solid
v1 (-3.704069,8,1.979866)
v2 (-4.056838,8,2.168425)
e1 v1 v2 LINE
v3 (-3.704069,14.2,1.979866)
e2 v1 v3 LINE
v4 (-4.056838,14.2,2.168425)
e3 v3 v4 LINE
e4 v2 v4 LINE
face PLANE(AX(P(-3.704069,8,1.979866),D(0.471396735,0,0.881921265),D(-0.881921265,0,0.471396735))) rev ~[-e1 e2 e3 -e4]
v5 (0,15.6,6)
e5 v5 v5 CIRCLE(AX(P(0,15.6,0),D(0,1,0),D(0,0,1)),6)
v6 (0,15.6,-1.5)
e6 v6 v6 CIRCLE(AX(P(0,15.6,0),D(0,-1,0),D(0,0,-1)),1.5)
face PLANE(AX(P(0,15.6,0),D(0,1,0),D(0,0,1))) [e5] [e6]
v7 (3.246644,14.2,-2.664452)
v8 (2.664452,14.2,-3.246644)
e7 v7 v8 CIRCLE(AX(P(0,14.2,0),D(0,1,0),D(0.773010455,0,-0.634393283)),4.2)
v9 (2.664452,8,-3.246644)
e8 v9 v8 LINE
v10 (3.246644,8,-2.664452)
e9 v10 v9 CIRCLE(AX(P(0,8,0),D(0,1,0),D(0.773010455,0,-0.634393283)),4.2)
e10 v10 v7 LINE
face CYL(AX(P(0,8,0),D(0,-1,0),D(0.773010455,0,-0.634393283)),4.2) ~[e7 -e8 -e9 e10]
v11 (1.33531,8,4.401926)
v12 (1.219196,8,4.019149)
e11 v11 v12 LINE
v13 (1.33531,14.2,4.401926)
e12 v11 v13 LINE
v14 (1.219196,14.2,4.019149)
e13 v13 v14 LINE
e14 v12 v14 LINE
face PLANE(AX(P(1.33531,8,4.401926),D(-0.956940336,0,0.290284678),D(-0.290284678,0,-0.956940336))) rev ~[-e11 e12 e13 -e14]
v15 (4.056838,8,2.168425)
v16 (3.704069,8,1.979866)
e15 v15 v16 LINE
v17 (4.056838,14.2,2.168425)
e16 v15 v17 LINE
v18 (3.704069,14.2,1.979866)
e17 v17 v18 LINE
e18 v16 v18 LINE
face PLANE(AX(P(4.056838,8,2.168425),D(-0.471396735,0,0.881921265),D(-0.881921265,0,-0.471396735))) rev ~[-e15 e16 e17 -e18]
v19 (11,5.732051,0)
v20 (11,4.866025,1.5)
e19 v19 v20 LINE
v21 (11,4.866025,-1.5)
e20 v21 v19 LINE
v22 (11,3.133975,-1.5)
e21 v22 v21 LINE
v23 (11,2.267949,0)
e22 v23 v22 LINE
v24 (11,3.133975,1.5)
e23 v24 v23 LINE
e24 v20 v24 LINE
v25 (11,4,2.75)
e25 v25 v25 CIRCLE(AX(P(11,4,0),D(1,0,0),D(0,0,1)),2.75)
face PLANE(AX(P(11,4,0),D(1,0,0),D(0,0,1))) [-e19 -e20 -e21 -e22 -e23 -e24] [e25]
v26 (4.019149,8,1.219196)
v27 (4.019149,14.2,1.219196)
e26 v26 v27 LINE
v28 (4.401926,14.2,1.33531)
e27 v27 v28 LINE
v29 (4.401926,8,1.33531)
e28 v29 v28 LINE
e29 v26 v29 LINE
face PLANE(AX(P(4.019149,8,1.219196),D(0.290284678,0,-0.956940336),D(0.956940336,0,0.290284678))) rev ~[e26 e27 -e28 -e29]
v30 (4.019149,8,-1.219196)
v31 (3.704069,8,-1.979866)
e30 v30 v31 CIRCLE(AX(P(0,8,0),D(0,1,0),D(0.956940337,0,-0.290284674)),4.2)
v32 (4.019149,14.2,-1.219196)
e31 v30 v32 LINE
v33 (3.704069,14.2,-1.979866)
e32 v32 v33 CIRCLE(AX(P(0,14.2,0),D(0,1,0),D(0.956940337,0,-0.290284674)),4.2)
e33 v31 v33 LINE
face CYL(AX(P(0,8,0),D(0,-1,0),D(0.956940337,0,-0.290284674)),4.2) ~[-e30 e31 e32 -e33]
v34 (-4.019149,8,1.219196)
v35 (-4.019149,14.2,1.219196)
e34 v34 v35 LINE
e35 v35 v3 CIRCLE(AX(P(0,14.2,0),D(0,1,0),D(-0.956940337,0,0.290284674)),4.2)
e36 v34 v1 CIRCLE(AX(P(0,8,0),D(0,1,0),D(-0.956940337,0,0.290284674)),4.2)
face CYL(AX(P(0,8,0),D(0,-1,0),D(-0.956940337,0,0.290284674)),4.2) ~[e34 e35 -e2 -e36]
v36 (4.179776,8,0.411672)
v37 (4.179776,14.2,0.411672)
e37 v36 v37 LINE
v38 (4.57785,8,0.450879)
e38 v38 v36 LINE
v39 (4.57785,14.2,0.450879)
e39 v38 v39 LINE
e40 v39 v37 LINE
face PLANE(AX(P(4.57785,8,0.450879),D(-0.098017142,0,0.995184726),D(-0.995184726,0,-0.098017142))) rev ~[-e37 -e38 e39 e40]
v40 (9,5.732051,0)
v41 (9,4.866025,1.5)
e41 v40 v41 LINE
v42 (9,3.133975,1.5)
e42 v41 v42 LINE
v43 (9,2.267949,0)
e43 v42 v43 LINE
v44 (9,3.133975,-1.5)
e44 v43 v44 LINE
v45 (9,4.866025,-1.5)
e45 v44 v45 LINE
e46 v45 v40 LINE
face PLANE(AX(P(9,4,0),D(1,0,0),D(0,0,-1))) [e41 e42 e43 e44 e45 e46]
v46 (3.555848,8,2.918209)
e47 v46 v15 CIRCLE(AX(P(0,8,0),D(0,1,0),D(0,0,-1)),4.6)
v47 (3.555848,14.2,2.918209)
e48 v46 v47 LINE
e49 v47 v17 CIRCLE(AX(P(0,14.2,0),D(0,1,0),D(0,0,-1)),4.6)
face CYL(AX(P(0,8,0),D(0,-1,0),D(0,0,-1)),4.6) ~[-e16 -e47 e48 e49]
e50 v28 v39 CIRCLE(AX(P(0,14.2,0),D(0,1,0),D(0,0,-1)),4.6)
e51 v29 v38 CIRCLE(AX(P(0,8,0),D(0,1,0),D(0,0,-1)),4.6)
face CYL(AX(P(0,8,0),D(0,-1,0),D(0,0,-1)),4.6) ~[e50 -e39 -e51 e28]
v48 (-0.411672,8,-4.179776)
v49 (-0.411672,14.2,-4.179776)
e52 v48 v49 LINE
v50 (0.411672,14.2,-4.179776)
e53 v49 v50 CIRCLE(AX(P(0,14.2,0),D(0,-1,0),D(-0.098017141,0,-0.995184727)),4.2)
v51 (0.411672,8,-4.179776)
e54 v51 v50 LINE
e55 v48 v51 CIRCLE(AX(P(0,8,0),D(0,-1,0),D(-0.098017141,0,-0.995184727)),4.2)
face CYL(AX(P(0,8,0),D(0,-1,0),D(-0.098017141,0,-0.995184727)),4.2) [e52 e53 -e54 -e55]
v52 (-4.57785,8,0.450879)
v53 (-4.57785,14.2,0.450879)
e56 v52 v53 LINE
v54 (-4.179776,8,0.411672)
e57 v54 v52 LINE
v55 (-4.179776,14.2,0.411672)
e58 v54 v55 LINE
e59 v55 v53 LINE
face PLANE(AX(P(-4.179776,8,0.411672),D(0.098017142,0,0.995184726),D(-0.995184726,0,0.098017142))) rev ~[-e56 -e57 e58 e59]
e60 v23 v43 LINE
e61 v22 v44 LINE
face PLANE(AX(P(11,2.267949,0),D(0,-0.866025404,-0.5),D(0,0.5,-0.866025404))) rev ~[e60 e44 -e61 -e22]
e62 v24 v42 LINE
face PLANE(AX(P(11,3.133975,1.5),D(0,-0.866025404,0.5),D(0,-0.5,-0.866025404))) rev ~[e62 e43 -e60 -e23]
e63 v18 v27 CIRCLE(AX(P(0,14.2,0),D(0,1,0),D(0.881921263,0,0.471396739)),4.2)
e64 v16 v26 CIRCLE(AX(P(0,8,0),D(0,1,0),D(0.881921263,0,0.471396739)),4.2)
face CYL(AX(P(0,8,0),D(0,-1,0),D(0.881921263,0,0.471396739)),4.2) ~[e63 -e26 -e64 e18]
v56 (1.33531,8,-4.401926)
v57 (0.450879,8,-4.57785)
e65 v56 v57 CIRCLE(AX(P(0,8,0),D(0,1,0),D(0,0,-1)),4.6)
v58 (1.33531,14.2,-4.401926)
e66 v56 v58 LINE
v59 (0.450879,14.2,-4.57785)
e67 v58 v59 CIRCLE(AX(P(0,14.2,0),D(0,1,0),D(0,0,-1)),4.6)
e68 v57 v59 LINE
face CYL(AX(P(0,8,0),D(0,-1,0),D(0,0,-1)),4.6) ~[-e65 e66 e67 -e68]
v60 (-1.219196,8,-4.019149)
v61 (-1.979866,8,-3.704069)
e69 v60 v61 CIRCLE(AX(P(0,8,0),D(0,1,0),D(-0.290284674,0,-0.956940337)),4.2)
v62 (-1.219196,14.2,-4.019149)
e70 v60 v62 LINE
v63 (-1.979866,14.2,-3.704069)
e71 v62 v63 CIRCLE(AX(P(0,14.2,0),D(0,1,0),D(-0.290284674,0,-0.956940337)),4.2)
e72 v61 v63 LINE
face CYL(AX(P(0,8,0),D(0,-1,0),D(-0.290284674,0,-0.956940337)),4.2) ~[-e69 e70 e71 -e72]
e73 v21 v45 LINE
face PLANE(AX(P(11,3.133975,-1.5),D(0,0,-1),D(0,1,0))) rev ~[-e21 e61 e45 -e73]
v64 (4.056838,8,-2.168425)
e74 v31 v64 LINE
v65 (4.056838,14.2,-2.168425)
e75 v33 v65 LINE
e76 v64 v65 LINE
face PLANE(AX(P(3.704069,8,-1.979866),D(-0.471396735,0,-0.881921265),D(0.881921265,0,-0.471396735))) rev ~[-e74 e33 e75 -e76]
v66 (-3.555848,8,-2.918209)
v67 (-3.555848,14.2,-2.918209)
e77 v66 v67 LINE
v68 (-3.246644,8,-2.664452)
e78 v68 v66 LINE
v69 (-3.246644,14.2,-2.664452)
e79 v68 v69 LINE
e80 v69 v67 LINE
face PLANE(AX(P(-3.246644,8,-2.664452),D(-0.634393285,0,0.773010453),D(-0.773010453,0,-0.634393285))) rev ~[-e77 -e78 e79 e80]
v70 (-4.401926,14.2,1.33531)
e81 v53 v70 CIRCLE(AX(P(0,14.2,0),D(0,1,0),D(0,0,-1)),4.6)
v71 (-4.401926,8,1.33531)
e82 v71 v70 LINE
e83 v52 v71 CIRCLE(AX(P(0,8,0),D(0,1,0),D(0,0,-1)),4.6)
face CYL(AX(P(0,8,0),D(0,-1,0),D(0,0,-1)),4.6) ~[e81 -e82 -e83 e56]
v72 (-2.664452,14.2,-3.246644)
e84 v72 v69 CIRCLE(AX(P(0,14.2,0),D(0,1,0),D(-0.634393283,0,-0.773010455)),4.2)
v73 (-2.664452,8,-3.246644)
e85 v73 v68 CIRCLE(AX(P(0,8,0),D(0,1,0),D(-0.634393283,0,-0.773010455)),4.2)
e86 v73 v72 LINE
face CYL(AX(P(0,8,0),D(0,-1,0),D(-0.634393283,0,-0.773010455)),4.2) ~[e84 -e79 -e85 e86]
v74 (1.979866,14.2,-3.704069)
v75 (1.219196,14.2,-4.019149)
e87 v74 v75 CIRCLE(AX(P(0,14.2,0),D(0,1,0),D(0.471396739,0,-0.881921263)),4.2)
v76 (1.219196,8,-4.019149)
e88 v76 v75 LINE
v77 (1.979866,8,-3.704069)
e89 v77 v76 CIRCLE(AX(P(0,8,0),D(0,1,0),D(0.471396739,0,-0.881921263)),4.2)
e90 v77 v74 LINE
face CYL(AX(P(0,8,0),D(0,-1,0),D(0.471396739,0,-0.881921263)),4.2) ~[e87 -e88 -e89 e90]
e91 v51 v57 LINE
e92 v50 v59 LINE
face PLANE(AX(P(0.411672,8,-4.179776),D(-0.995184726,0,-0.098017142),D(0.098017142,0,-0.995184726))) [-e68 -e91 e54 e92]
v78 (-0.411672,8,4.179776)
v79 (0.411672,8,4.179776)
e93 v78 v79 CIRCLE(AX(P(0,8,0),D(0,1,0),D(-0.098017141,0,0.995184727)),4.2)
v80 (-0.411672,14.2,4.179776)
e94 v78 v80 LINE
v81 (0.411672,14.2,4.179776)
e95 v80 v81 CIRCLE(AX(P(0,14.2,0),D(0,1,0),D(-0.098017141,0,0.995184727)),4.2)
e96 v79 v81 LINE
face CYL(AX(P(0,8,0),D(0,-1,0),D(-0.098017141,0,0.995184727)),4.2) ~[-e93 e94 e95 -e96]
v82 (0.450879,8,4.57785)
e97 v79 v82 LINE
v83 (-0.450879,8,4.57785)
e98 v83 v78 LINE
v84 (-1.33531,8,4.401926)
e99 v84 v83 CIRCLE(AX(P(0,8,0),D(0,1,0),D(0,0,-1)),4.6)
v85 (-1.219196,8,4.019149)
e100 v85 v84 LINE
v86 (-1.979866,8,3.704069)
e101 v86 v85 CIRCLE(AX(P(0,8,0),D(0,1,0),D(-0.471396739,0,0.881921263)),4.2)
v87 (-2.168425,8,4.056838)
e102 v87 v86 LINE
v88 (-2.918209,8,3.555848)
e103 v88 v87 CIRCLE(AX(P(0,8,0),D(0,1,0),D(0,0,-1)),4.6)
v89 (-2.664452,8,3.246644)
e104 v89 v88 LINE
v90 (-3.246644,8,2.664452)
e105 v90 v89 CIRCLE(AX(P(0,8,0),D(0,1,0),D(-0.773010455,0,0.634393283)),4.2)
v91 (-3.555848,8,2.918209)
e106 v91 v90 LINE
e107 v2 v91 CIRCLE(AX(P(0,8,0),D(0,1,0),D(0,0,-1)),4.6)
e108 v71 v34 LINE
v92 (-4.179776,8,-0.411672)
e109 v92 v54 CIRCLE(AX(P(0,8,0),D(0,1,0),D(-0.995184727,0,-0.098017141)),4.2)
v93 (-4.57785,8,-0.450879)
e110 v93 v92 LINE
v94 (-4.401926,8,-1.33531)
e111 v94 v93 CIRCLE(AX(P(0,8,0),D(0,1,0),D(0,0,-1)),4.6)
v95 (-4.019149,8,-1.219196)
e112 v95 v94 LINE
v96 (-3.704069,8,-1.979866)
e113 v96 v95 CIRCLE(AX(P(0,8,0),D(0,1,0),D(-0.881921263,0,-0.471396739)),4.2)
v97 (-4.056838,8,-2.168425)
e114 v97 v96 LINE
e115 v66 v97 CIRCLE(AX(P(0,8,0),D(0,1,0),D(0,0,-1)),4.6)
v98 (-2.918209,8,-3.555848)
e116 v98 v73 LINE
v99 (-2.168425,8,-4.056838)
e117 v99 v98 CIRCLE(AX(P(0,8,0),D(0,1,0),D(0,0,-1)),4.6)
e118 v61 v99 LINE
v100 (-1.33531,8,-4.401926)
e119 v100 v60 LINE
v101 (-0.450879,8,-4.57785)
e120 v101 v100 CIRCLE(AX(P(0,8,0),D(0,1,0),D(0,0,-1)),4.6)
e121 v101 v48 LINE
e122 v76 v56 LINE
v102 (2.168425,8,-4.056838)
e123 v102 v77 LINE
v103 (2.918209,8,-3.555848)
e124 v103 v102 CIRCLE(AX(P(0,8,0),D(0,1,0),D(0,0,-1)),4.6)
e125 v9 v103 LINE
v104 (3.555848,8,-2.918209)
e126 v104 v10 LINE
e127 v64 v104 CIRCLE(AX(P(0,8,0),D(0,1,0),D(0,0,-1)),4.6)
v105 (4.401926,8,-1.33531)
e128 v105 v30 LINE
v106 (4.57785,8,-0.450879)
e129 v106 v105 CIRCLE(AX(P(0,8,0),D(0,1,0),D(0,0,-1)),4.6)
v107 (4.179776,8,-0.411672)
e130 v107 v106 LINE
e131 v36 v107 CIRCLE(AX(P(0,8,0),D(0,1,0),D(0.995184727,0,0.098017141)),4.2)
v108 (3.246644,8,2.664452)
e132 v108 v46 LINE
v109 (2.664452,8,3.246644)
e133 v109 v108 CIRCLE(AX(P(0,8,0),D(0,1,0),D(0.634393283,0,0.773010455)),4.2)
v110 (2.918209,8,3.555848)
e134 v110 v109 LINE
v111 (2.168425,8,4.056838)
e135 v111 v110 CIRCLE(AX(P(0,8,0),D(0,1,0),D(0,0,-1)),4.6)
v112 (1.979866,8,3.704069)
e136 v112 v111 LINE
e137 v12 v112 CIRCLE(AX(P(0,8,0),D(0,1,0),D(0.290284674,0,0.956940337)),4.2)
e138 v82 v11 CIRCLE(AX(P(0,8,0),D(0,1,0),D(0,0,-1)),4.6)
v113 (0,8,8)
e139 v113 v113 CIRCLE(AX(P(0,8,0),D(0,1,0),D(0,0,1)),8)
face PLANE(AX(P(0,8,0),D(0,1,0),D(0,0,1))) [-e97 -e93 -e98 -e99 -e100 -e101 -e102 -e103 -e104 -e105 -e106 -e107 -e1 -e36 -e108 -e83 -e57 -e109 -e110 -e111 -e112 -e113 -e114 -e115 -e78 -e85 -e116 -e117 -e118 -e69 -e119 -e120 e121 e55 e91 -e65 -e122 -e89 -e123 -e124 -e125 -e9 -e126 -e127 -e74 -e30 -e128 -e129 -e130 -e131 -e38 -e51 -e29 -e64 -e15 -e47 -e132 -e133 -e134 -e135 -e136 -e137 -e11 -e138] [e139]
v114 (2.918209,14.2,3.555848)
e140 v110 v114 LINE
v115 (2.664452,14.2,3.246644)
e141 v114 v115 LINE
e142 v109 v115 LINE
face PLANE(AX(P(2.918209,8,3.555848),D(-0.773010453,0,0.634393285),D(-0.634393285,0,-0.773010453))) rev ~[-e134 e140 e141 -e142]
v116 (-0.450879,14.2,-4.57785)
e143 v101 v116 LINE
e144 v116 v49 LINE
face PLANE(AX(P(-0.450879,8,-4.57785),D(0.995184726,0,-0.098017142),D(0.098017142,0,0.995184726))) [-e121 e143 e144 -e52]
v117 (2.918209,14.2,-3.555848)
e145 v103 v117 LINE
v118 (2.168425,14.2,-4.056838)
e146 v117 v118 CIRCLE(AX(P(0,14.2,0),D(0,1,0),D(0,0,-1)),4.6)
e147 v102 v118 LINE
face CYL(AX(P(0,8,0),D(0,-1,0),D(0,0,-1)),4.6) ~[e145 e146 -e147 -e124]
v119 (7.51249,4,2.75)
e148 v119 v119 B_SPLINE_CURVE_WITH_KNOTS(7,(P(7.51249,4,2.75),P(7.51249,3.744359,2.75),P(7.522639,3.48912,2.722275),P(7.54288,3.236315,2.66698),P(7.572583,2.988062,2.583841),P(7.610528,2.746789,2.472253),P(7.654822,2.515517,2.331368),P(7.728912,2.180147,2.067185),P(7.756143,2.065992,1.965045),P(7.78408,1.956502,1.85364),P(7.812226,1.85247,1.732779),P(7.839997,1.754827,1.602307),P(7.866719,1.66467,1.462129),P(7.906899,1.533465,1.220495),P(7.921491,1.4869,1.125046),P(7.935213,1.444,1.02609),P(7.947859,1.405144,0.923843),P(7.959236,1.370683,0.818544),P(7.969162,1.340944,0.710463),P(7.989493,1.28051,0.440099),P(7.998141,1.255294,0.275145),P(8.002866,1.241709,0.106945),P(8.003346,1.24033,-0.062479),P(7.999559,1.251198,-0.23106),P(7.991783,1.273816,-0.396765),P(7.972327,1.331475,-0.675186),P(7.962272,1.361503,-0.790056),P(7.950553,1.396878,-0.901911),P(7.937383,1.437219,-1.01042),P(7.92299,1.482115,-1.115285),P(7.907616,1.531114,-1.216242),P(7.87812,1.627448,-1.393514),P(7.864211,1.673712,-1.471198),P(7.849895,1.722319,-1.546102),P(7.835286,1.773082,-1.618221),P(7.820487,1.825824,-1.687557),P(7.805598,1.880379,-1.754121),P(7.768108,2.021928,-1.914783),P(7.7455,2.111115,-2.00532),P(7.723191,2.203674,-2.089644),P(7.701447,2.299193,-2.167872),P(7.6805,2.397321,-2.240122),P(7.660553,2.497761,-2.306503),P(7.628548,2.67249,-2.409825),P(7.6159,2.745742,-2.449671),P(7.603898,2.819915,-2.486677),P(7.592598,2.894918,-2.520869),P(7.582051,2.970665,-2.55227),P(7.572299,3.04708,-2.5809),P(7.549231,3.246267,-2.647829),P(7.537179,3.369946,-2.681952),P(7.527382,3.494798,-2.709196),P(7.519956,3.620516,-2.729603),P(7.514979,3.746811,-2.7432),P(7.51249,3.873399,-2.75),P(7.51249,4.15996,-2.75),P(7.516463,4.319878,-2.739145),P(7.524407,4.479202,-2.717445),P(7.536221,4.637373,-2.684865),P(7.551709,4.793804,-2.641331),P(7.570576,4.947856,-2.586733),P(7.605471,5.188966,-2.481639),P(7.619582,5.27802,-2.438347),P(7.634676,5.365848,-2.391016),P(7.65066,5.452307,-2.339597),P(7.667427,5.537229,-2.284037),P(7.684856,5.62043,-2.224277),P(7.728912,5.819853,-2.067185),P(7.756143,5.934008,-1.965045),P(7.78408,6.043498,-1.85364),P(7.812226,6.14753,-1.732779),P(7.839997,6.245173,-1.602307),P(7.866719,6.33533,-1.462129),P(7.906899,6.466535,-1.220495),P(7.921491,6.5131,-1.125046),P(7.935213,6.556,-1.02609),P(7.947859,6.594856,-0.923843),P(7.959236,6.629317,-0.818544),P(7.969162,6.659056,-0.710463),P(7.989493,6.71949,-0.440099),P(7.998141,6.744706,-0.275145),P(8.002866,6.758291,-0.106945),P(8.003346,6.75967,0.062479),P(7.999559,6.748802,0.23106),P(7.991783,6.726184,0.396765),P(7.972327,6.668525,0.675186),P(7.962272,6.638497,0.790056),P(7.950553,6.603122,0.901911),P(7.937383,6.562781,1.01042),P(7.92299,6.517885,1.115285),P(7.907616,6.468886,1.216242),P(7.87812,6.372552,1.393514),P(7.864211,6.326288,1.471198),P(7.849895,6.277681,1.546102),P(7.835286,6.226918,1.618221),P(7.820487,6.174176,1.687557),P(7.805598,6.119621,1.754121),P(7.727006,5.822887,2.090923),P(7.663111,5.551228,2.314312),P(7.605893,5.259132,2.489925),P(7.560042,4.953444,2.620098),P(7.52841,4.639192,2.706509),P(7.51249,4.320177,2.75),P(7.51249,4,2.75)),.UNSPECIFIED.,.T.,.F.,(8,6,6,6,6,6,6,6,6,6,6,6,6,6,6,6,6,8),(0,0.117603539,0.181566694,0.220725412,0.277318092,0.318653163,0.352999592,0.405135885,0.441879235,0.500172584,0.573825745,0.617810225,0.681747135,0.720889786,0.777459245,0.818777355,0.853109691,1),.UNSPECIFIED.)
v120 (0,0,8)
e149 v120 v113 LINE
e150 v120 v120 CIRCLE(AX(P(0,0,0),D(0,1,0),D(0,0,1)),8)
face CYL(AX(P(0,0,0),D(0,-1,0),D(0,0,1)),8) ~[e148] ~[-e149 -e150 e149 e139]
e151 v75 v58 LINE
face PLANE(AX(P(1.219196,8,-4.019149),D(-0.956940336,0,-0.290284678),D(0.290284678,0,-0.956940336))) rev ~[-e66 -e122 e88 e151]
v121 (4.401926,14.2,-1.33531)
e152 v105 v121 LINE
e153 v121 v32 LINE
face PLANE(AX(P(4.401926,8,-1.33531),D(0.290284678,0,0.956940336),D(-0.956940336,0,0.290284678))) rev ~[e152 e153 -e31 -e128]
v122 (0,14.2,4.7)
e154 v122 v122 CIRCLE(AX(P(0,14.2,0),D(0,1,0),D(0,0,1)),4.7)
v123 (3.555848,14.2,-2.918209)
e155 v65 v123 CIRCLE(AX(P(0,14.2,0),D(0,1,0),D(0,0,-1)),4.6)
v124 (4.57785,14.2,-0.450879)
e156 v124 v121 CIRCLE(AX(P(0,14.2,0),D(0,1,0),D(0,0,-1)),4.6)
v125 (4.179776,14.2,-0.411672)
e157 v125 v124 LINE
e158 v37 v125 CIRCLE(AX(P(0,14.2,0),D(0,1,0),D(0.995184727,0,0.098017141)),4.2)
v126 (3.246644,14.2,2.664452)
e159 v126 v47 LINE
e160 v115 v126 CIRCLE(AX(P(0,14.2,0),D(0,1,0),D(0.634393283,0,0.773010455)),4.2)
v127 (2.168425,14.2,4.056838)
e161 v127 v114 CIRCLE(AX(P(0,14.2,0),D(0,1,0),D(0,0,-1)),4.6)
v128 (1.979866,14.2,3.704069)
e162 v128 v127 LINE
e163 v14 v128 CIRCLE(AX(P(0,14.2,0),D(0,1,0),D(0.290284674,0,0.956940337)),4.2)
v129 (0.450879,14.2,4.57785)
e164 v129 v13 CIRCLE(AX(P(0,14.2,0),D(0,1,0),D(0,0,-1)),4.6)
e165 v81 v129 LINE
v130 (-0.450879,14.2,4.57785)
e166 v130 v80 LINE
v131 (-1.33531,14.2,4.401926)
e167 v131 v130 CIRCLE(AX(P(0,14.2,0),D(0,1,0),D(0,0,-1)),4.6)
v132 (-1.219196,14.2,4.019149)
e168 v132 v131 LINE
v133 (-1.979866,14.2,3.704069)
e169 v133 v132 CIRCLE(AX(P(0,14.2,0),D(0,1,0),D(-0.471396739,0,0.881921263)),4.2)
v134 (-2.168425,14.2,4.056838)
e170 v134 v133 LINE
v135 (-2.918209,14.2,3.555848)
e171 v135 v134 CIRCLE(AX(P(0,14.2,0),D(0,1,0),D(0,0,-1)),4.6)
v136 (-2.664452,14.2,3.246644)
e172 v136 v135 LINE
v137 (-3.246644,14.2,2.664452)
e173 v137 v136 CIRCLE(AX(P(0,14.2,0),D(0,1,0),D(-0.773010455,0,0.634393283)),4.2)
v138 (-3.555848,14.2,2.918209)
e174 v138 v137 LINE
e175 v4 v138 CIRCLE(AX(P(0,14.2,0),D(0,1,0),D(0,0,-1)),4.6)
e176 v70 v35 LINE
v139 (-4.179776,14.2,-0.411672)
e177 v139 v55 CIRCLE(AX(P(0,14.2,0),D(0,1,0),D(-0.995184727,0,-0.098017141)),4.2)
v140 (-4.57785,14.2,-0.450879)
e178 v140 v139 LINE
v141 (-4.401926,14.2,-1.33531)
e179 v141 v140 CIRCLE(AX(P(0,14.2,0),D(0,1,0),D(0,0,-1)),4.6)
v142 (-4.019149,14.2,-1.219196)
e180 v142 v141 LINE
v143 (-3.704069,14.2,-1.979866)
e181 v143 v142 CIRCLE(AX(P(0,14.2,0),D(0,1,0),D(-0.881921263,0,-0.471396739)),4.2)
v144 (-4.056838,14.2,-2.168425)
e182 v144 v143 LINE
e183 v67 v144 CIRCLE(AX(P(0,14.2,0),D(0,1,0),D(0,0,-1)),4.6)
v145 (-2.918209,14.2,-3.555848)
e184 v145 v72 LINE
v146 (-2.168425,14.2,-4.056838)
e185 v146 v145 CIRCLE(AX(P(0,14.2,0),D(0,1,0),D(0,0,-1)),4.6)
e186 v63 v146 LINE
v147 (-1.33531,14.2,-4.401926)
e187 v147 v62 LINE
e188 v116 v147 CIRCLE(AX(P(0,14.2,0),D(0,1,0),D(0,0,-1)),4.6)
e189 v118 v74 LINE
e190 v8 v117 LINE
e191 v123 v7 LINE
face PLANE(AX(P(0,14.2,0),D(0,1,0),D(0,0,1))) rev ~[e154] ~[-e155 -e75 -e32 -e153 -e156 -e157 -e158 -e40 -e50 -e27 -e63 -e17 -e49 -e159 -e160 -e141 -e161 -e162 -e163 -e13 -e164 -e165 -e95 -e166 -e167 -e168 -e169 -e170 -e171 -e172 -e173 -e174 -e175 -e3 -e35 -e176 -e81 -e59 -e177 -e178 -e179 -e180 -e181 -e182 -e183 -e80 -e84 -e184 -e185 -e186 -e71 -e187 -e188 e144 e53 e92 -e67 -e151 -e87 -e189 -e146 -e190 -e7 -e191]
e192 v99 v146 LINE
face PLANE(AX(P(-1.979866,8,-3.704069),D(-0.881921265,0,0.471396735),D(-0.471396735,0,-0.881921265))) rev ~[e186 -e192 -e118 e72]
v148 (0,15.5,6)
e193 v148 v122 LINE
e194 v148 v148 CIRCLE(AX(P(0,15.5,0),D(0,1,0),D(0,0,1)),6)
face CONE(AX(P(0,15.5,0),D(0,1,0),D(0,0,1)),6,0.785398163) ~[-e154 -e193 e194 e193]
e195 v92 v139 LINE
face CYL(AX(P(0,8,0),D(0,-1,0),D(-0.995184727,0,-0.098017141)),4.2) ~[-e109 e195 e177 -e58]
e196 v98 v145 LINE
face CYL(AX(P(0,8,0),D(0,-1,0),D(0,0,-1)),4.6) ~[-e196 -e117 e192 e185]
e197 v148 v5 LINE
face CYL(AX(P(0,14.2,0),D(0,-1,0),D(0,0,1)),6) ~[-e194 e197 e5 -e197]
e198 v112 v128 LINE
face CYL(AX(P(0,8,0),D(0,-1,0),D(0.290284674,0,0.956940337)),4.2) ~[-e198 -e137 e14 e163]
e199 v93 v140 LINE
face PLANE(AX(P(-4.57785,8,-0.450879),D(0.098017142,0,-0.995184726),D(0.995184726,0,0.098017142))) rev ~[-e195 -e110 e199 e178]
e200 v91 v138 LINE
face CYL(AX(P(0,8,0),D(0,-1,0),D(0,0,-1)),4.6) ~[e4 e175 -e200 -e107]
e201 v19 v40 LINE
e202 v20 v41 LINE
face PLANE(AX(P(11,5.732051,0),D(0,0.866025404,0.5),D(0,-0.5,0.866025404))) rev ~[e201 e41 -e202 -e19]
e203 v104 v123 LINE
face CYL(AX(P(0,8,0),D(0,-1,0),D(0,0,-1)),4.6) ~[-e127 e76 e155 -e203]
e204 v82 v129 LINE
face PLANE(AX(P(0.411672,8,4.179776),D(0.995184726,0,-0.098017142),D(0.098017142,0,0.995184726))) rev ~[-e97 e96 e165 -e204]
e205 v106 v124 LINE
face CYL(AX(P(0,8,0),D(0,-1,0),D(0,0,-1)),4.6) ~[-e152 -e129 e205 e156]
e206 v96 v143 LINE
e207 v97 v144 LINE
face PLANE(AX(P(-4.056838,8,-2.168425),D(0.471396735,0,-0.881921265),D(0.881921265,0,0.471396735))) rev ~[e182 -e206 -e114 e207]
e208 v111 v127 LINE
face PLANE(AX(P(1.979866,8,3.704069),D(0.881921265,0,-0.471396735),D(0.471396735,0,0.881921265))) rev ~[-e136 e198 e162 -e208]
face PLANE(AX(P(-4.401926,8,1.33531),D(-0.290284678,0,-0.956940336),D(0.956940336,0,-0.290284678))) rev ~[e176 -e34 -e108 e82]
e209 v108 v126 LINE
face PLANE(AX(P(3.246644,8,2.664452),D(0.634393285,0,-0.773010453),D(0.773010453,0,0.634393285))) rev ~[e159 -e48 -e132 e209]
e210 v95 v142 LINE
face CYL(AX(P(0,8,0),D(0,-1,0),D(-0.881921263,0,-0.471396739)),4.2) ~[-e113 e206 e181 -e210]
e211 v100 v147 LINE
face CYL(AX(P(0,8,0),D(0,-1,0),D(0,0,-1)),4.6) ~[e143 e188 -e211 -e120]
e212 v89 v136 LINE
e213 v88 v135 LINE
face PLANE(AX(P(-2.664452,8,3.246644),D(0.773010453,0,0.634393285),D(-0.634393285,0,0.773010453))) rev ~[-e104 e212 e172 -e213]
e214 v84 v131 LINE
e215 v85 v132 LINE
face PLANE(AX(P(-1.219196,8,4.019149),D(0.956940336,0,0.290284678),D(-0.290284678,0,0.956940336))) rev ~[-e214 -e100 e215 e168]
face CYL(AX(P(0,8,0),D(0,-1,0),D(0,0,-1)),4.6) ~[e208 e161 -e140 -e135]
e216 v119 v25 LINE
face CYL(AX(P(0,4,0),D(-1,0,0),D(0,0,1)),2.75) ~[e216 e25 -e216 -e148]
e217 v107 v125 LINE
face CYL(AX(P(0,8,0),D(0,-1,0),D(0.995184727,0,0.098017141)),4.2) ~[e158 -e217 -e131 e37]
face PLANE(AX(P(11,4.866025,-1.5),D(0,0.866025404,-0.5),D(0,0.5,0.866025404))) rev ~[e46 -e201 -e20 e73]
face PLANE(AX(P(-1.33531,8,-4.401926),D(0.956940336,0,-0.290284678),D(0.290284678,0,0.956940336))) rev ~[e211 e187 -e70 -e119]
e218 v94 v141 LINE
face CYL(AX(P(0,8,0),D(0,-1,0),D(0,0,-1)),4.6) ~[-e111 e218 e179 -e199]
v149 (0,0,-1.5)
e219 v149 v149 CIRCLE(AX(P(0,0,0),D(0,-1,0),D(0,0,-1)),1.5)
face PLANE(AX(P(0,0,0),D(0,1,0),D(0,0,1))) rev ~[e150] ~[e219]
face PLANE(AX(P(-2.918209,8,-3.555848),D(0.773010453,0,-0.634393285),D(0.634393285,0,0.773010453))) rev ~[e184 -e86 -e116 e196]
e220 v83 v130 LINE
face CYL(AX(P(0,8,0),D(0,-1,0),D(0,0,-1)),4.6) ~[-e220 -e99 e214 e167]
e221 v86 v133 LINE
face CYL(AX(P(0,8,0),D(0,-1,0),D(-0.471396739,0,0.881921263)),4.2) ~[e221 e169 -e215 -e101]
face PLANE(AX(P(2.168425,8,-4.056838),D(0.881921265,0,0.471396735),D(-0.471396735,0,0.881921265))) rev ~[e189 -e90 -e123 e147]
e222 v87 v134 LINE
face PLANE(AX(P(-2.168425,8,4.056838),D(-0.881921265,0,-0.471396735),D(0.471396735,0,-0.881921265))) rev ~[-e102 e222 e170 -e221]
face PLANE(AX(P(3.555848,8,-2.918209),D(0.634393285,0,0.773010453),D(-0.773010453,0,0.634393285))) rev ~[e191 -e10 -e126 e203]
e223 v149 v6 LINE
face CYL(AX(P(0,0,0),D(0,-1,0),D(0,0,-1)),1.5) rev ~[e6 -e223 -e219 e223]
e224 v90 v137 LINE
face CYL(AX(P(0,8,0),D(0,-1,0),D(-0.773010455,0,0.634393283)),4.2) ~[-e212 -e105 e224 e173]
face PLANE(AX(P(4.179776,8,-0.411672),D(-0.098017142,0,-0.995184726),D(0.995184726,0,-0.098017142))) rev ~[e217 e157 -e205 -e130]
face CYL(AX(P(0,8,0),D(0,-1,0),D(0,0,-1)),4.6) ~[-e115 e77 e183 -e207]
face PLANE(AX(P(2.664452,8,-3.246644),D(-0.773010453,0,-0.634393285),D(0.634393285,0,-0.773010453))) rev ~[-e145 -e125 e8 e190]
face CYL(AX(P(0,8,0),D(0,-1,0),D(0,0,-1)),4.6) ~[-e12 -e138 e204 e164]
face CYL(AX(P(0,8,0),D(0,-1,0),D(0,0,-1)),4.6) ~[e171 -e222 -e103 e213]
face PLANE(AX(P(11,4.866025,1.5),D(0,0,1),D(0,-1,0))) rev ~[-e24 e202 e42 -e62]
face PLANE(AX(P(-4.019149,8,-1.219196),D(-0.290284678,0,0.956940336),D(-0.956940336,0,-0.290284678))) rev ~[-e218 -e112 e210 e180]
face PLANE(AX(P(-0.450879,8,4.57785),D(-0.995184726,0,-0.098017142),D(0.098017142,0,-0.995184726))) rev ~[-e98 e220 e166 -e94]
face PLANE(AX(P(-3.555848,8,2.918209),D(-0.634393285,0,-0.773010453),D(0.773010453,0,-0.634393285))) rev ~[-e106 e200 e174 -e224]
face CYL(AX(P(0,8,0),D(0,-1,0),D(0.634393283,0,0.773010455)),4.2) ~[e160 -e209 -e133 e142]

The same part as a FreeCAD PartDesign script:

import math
import FreeCAD as App
import Part
import Sketcher

V = App.Vector
Q = App.Units.Quantity


def edges_at(feature, points):
    """Names of the edges that pass closest to the given points."""
    edges = feature.Shape.Edges
    near = lambda p: min(range(len(edges)), key=lambda i: edges[i].distToShape(Part.Vertex(*p))[0])
    return sorted({f"Edge{near(p) + 1}" for p in points})


def add_polygon(sketch, points):
    """Adds a closed chain of lines whose ends are joined by coincident constraints."""
    first, n = sketch.GeometryCount, len(points)
    for a, b in zip(points, points[1:] + points[:1]):
        sketch.addGeometry(Part.LineSegment(App.Vector(*a, 0), App.Vector(*b, 0)), False)
    for i in range(n):
        sketch.addConstraint(Sketcher.Constraint("Coincident", first + i, 2, first + (i + 1) % n, 1))

doc = App.newDocument("Part")
body = doc.addObject("PartDesign::Body", "Body")

sketch1 = doc.addObject("Sketcher::SketchObject", "Sketch")
body.addObject(sketch1)
sketch1.AttachmentSupport = (doc.XZ_Plane, [""])
sketch1.MapMode = "FlatFace"
sketch1.addGeometry(Part.Circle(V(0, 0, 0), V(0, 0, 1), 8), False)
sketch1.addConstraint([
    Sketcher.Constraint("Coincident", 0, 3, -1, 1),
    Sketcher.Constraint("Diameter", 0, 16.0),
])
pad1 = doc.addObject("PartDesign::Pad", "Pad")
body.addObject(pad1)
pad1.Profile = sketch1
pad1.Length = 8
pad1.Reversed = True

sketch2 = doc.addObject("Sketcher::SketchObject", "Sketch001")
body.addObject(sketch2)
sketch2.AttachmentSupport = (doc.XZ_Plane, [""])
sketch2.MapMode = "FlatFace"
sketch2.AttachmentOffset = App.Placement(V(0, 0, -8), App.Rotation())
sketch2.addGeometry(Part.Circle(V(0, 0, 0), V(0, 0, 1), 4.6), False)
sketch2.addConstraint([
    Sketcher.Constraint("Coincident", 0, 3, -1, 1),
    Sketcher.Constraint("Diameter", 0, 9.2),
])
pad2 = doc.addObject("PartDesign::Pad", "Pad001")
body.addObject(pad2)
pad2.Profile = sketch2
pad2.Length = 6.2
pad2.Reversed = True

sketch3 = doc.addObject("Sketcher::SketchObject", "Sketch002")
body.addObject(sketch3)
sketch3.AttachmentSupport = (doc.XZ_Plane, [""])
sketch3.MapMode = "FlatFace"
sketch3.AttachmentOffset = App.Placement(V(0, 0, -8), App.Rotation())
sketch3.addGeometry([
    Part.LineSegment(V(-0.45, -4.58, 0), V(-0.41, -4.18, 0)),
    Part.ArcOfCircle(Part.Circle(V(0, 0, 0), V(0, 0, 1), 4.2), math.radians(-95.63), math.radians(-84.37)),
    Part.LineSegment(V(0.41, -4.18, 0), V(0.45, -4.58, 0)),
    Part.ArcOfCircle(Part.Circle(V(0, 0, 0), V(0, 0, 1), 4.6), math.radians(-95.62), math.radians(-84.38)),
    Part.LineSegment(V(1.98, -3.7, 0), V(2.17, -4.06, 0)),
    Part.ArcOfCircle(Part.Circle(V(0, 0, 0), V(0, 0, 1), 4.6), math.radians(-73.13), math.radians(-61.87)),
    Part.LineSegment(V(1.34, -4.4, 0), V(1.22, -4.02, 0)),
    Part.ArcOfCircle(Part.Circle(V(0, 0, 0), V(0, 0, 1), 4.2), math.radians(-73.13), math.radians(-61.87)),
    Part.LineSegment(V(3.25, -2.66, 0), V(3.56, -2.92, 0)),
    Part.ArcOfCircle(Part.Circle(V(0, 0, 0), V(0, 0, 1), 4.6), math.radians(-50.62), math.radians(-39.38)),
    Part.LineSegment(V(2.92, -3.56, 0), V(2.66, -3.25, 0)),
    Part.ArcOfCircle(Part.Circle(V(0, 0, 0), V(0, 0, 1), 4.2), math.radians(-50.63), math.radians(-39.37)),
    Part.LineSegment(V(4.02, -1.22, 0), V(4.4, -1.34, 0)),
    Part.ArcOfCircle(Part.Circle(V(0, 0, 0), V(0, 0, 1), 4.6), math.radians(-28.13), math.radians(-16.87)),
    Part.LineSegment(V(4.06, -2.17, 0), V(3.7, -1.98, 0)),
    Part.ArcOfCircle(Part.Circle(V(0, 0, 0), V(0, 0, 1), 4.2), math.radians(-28.13), math.radians(-16.87)),
    Part.LineSegment(V(4.18, 0.41, 0), V(4.58, 0.45, 0)),
    Part.ArcOfCircle(Part.Circle(V(0, 0, 0), V(0, 0, 1), 4.6), math.radians(-5.62), math.radians(5.62)),
    Part.LineSegment(V(4.58, -0.45, 0), V(4.18, -0.41, 0)),
    Part.ArcOfCircle(Part.Circle(V(0, 0, 0), V(0, 0, 1), 4.2), math.radians(-5.63), math.radians(5.63)),
    Part.LineSegment(V(3.7, 1.98, 0), V(4.06, 2.17, 0)),
    Part.ArcOfCircle(Part.Circle(V(0, 0, 0), V(0, 0, 1), 4.6), math.radians(16.87), math.radians(28.13)),
    Part.LineSegment(V(4.4, 1.34, 0), V(4.02, 1.22, 0)),
    Part.ArcOfCircle(Part.Circle(V(0, 0, 0), V(0, 0, 1), 4.2), math.radians(16.87), math.radians(28.13)),
    Part.LineSegment(V(2.66, 3.25, 0), V(2.92, 3.56, 0)),
    Part.ArcOfCircle(Part.Circle(V(0, 0, 0), V(0, 0, 1), 4.6), math.radians(39.38), math.radians(50.62)),
    Part.LineSegment(V(3.56, 2.92, 0), V(3.25, 2.66, 0)),
    Part.ArcOfCircle(Part.Circle(V(0, 0, 0), V(0, 0, 1), 4.2), math.radians(39.37), math.radians(50.63)),
    Part.LineSegment(V(1.22, 4.02, 0), V(1.34, 4.4, 0)),
    Part.ArcOfCircle(Part.Circle(V(0, 0, 0), V(0, 0, 1), 4.6), math.radians(61.87), math.radians(73.13)),
    Part.LineSegment(V(2.17, 4.06, 0), V(1.98, 3.7, 0)),
    Part.ArcOfCircle(Part.Circle(V(0, 0, 0), V(0, 0, 1), 4.2), math.radians(61.87), math.radians(73.13)),
    Part.LineSegment(V(-0.41, 4.18, 0), V(-0.45, 4.58, 0)),
    Part.ArcOfCircle(Part.Circle(V(0, 0, 0), V(0, 0, 1), 4.6), math.radians(84.38), math.radians(95.62)),
    Part.LineSegment(V(0.45, 4.58, 0), V(0.41, 4.18, 0)),
    Part.ArcOfCircle(Part.Circle(V(0, 0, 0), V(0, 0, 1), 4.2), math.radians(84.37), math.radians(95.63)),
    Part.LineSegment(V(-1.98, 3.7, 0), V(-2.17, 4.06, 0)),
    Part.ArcOfCircle(Part.Circle(V(0, 0, 0), V(0, 0, 1), 4.6), math.radians(106.87), math.radians(118.13)),
    Part.LineSegment(V(-1.34, 4.4, 0), V(-1.22, 4.02, 0)),
    Part.ArcOfCircle(Part.Circle(V(0, 0, 0), V(0, 0, 1), 4.2), math.radians(106.87), math.radians(118.13)),
    Part.LineSegment(V(-3.25, 2.66, 0), V(-3.56, 2.92, 0)),
    Part.ArcOfCircle(Part.Circle(V(0, 0, 0), V(0, 0, 1), 4.6), math.radians(129.38), math.radians(140.62)),
    Part.LineSegment(V(-2.92, 3.56, 0), V(-2.66, 3.25, 0)),
    Part.ArcOfCircle(Part.Circle(V(0, 0, 0), V(0, 0, 1), 4.2), math.radians(129.37), math.radians(140.63)),
    Part.LineSegment(V(-4.02, 1.22, 0), V(-4.4, 1.34, 0)),
    Part.ArcOfCircle(Part.Circle(V(0, 0, 0), V(0, 0, 1), 4.6), math.radians(151.87), math.radians(163.13)),
    Part.LineSegment(V(-4.06, 2.17, 0), V(-3.7, 1.98, 0)),
    Part.ArcOfCircle(Part.Circle(V(0, 0, 0), V(0, 0, 1), 4.2), math.radians(151.87), math.radians(163.13)),
    Part.LineSegment(V(-4.18, -0.41, 0), V(-4.58, -0.45, 0)),
    Part.ArcOfCircle(Part.Circle(V(0, 0, 0), V(0, 0, 1), 4.6), math.radians(174.38), math.radians(185.62)),
    Part.LineSegment(V(-4.58, 0.45, 0), V(-4.18, 0.41, 0)),
    Part.ArcOfCircle(Part.Circle(V(0, 0, 0), V(0, 0, 1), 4.2), math.radians(174.37), math.radians(185.63)),
    Part.LineSegment(V(-3.7, -1.98, 0), V(-4.06, -2.17, 0)),
    Part.ArcOfCircle(Part.Circle(V(0, 0, 0), V(0, 0, 1), 4.6), math.radians(-163.13), math.radians(-151.87)),
    Part.LineSegment(V(-4.4, -1.34, 0), V(-4.02, -1.22, 0)),
    Part.ArcOfCircle(Part.Circle(V(0, 0, 0), V(0, 0, 1), 4.2), math.radians(-163.13), math.radians(-151.87)),
    Part.LineSegment(V(-2.66, -3.25, 0), V(-2.92, -3.56, 0)),
    Part.ArcOfCircle(Part.Circle(V(0, 0, 0), V(0, 0, 1), 4.6), math.radians(-140.62), math.radians(-129.38)),
    Part.LineSegment(V(-3.56, -2.92, 0), V(-3.25, -2.66, 0)),
    Part.ArcOfCircle(Part.Circle(V(0, 0, 0), V(0, 0, 1), 4.2), math.radians(-140.63), math.radians(-129.37)),
    Part.LineSegment(V(-1.22, -4.02, 0), V(-1.34, -4.4, 0)),
    Part.ArcOfCircle(Part.Circle(V(0, 0, 0), V(0, 0, 1), 4.6), math.radians(-118.13), math.radians(-106.87)),
    Part.LineSegment(V(-2.17, -4.06, 0), V(-1.98, -3.7, 0)),
    Part.ArcOfCircle(Part.Circle(V(0, 0, 0), V(0, 0, 1), 4.2), math.radians(-118.13), math.radians(-106.87)),
], False)
sketch3.addConstraint([
    Sketcher.Constraint("Coincident", 0, 2, 1, 1),
    Sketcher.Constraint("Coincident", 1, 2, 2, 1),
    Sketcher.Constraint("Coincident", 2, 2, 3, 2),
    Sketcher.Constraint("Coincident", 3, 1, 0, 1),
    Sketcher.Constraint("Coincident", 4, 2, 5, 2),
    Sketcher.Constraint("Coincident", 5, 1, 6, 1),
    Sketcher.Constraint("Coincident", 6, 2, 7, 1),
    Sketcher.Constraint("Coincident", 7, 2, 4, 1),
    Sketcher.Constraint("Coincident", 8, 2, 9, 2),
    Sketcher.Constraint("Coincident", 9, 1, 10, 1),
    Sketcher.Constraint("Coincident", 10, 2, 11, 1),
    Sketcher.Constraint("Coincident", 11, 2, 8, 1),
    Sketcher.Constraint("Coincident", 12, 2, 13, 2),
    Sketcher.Constraint("Coincident", 13, 1, 14, 1),
    Sketcher.Constraint("Coincident", 14, 2, 15, 1),
    Sketcher.Constraint("Coincident", 15, 2, 12, 1),
    Sketcher.Constraint("Coincident", 16, 2, 17, 2),
    Sketcher.Constraint("Coincident", 17, 1, 18, 1),
    Sketcher.Constraint("Coincident", 18, 2, 19, 1),
    Sketcher.Constraint("Coincident", 19, 2, 16, 1),
    Sketcher.Constraint("Coincident", 20, 2, 21, 2),
    Sketcher.Constraint("Coincident", 21, 1, 22, 1),
    Sketcher.Constraint("Coincident", 22, 2, 23, 1),
    Sketcher.Constraint("Coincident", 23, 2, 20, 1),
    Sketcher.Constraint("Coincident", 24, 2, 25, 2),
    Sketcher.Constraint("Coincident", 25, 1, 26, 1),
    Sketcher.Constraint("Coincident", 26, 2, 27, 1),
    Sketcher.Constraint("Coincident", 27, 2, 24, 1),
    Sketcher.Constraint("Coincident", 28, 2, 29, 2),
    Sketcher.Constraint("Coincident", 29, 1, 30, 1),
    Sketcher.Constraint("Coincident", 30, 2, 31, 1),
    Sketcher.Constraint("Coincident", 31, 2, 28, 1),
    Sketcher.Constraint("Coincident", 32, 2, 33, 2),
    Sketcher.Constraint("Coincident", 33, 1, 34, 1),
    Sketcher.Constraint("Coincident", 34, 2, 35, 1),
    Sketcher.Constraint("Coincident", 35, 2, 32, 1),
    Sketcher.Constraint("Coincident", 36, 2, 37, 2),
    Sketcher.Constraint("Coincident", 37, 1, 38, 1),
    Sketcher.Constraint("Coincident", 38, 2, 39, 1),
    Sketcher.Constraint("Coincident", 39, 2, 36, 1),
    Sketcher.Constraint("Coincident", 40, 2, 41, 2),
    Sketcher.Constraint("Coincident", 41, 1, 42, 1),
    Sketcher.Constraint("Coincident", 42, 2, 43, 1),
    Sketcher.Constraint("Coincident", 43, 2, 40, 1),
    Sketcher.Constraint("Coincident", 44, 2, 45, 2),
    Sketcher.Constraint("Coincident", 45, 1, 46, 1),
    Sketcher.Constraint("Coincident", 46, 2, 47, 1),
    Sketcher.Constraint("Coincident", 47, 2, 44, 1),
    Sketcher.Constraint("Coincident", 48, 2, 49, 2),
    Sketcher.Constraint("Coincident", 49, 1, 50, 1),
    Sketcher.Constraint("Coincident", 50, 2, 51, 1),
    Sketcher.Constraint("Coincident", 51, 2, 48, 1),
    Sketcher.Constraint("Coincident", 52, 2, 53, 2),
    Sketcher.Constraint("Coincident", 53, 1, 54, 1),
    Sketcher.Constraint("Coincident", 54, 2, 55, 1),
    Sketcher.Constraint("Coincident", 55, 2, 52, 1),
    Sketcher.Constraint("Coincident", 56, 2, 57, 2),
    Sketcher.Constraint("Coincident", 57, 1, 58, 1),
    Sketcher.Constraint("Coincident", 58, 2, 59, 1),
    Sketcher.Constraint("Coincident", 59, 2, 56, 1),
    Sketcher.Constraint("Coincident", 60, 2, 61, 2),
    Sketcher.Constraint("Coincident", 61, 1, 62, 1),
    Sketcher.Constraint("Coincident", 62, 2, 63, 1),
    Sketcher.Constraint("Coincident", 63, 2, 60, 1),
    Sketcher.Constraint("Coincident", 1, 3, -1, 1),
    Sketcher.Constraint("Coincident", 3, 3, -1, 1),
    Sketcher.Constraint("Coincident", 5, 3, -1, 1),
    Sketcher.Constraint("Coincident", 7, 3, -1, 1),
    Sketcher.Constraint("Coincident", 9, 3, -1, 1),
    Sketcher.Constraint("Coincident", 11, 3, -1, 1),
    Sketcher.Constraint("Coincident", 13, 3, -1, 1),
    Sketcher.Constraint("Coincident", 15, 3, -1, 1),
    Sketcher.Constraint("Coincident", 17, 3, -1, 1),
    Sketcher.Constraint("Coincident", 19, 3, -1, 1),
    Sketcher.Constraint("Coincident", 21, 3, -1, 1),
    Sketcher.Constraint("Coincident", 23, 3, -1, 1),
    Sketcher.Constraint("Coincident", 25, 3, -1, 1),
    Sketcher.Constraint("Coincident", 27, 3, -1, 1),
    Sketcher.Constraint("Coincident", 29, 3, -1, 1),
    Sketcher.Constraint("Coincident", 31, 3, -1, 1),
    Sketcher.Constraint("Coincident", 33, 3, -1, 1),
    Sketcher.Constraint("Coincident", 35, 3, -1, 1),
    Sketcher.Constraint("Coincident", 37, 3, -1, 1),
    Sketcher.Constraint("Coincident", 39, 3, -1, 1),
    Sketcher.Constraint("Coincident", 41, 3, -1, 1),
    Sketcher.Constraint("Coincident", 43, 3, -1, 1),
    Sketcher.Constraint("Coincident", 45, 3, -1, 1),
    Sketcher.Constraint("Coincident", 47, 3, -1, 1),
    Sketcher.Constraint("Coincident", 49, 3, -1, 1),
    Sketcher.Constraint("Coincident", 51, 3, -1, 1),
    Sketcher.Constraint("Coincident", 53, 3, -1, 1),
    Sketcher.Constraint("Coincident", 55, 3, -1, 1),
    Sketcher.Constraint("Coincident", 57, 3, -1, 1),
    Sketcher.Constraint("Coincident", 59, 3, -1, 1),
    Sketcher.Constraint("Coincident", 61, 3, -1, 1),
    Sketcher.Constraint("Coincident", 63, 3, -1, 1),
    Sketcher.Constraint("Equal", 3, 5),
    Sketcher.Constraint("Equal", 1, 7),
    Sketcher.Constraint("Equal", 5, 9),
    Sketcher.Constraint("Equal", 7, 11),
    Sketcher.Constraint("Equal", 9, 13),
    Sketcher.Constraint("Equal", 11, 15),
    Sketcher.Constraint("Equal", 13, 17),
    Sketcher.Constraint("Equal", 15, 19),
    Sketcher.Constraint("Equal", 17, 21),
    Sketcher.Constraint("Equal", 19, 23),
    Sketcher.Constraint("Equal", 21, 25),
    Sketcher.Constraint("Equal", 23, 27),
    Sketcher.Constraint("Equal", 25, 29),
    Sketcher.Constraint("Equal", 27, 31),
    Sketcher.Constraint("Equal", 29, 33),
    Sketcher.Constraint("Equal", 31, 35),
    Sketcher.Constraint("Equal", 33, 37),
    Sketcher.Constraint("Equal", 35, 39),
    Sketcher.Constraint("Equal", 37, 41),
    Sketcher.Constraint("Equal", 39, 43),
    Sketcher.Constraint("Equal", 41, 45),
    Sketcher.Constraint("Equal", 43, 47),
    Sketcher.Constraint("Equal", 45, 49),
    Sketcher.Constraint("Equal", 47, 51),
    Sketcher.Constraint("Equal", 49, 53),
    Sketcher.Constraint("Equal", 51, 55),
    Sketcher.Constraint("Equal", 53, 57),
    Sketcher.Constraint("Equal", 55, 59),
    Sketcher.Constraint("Equal", 57, 61),
    Sketcher.Constraint("Equal", 59, 63),
    Sketcher.Constraint("Perpendicular", 2, 16),
    Sketcher.Constraint("Perpendicular", 0, 18),
    Sketcher.Constraint("Perpendicular", 4, 20),
    Sketcher.Constraint("Perpendicular", 6, 22),
    Sketcher.Constraint("Perpendicular", 8, 24),
    Sketcher.Constraint("Perpendicular", 10, 26),
    Sketcher.Constraint("Perpendicular", 12, 28),
    Sketcher.Constraint("Perpendicular", 14, 30),
    Sketcher.Constraint("Perpendicular", 16, 32),
    Sketcher.Constraint("Perpendicular", 18, 34),
    Sketcher.Constraint("Perpendicular", 20, 36),
    Sketcher.Constraint("Perpendicular", 22, 38),
    Sketcher.Constraint("Perpendicular", 24, 40),
    Sketcher.Constraint("Perpendicular", 26, 42),
    Sketcher.Constraint("Perpendicular", 28, 44),
    Sketcher.Constraint("Perpendicular", 30, 46),
    Sketcher.Constraint("Perpendicular", 32, 48),
    Sketcher.Constraint("Perpendicular", 34, 50),
    Sketcher.Constraint("Perpendicular", 36, 52),
    Sketcher.Constraint("Perpendicular", 38, 54),
    Sketcher.Constraint("Perpendicular", 40, 56),
    Sketcher.Constraint("Perpendicular", 42, 58),
    Sketcher.Constraint("Perpendicular", 44, 60),
    Sketcher.Constraint("Perpendicular", 46, 62),
    Sketcher.Constraint("Horizontal", 0, 2, 1, 2),
    Sketcher.Constraint("Horizontal", 2, 2, 3, 1),
    Sketcher.Constraint("Horizontal", 32, 2, 33, 1),
    Sketcher.Constraint("Horizontal", 29, 1, 36, 2),
    Sketcher.Constraint("Horizontal", 28, 2, 37, 1),
    Sketcher.Constraint("Horizontal", 31, 2, 38, 2),
    Sketcher.Constraint("Horizontal", 30, 2, 39, 2),
    Sketcher.Constraint("Horizontal", 25, 1, 40, 2),
    Sketcher.Constraint("Horizontal", 24, 2, 41, 1),
    Sketcher.Constraint("Horizontal", 27, 2, 42, 2),
    Sketcher.Constraint("Horizontal", 21, 1, 44, 2),
    Sketcher.Constraint("Horizontal", 20, 2, 45, 1),
    Sketcher.Constraint("Horizontal", 17, 1, 48, 2),
    Sketcher.Constraint("Horizontal", 16, 2, 49, 1),
    Sketcher.Constraint("Horizontal", 13, 1, 52, 2),
    Sketcher.Constraint("Horizontal", 12, 2, 53, 1),
    Sketcher.Constraint("Horizontal", 9, 1, 56, 2),
    Sketcher.Constraint("Horizontal", 8, 2, 57, 1),
    Sketcher.Constraint("Horizontal", 5, 1, 60, 2),
    Sketcher.Constraint("Horizontal", 4, 2, 61, 1),
    Sketcher.Constraint("Vertical", 16, 2, 17, 1),
    Sketcher.Constraint("Vertical", 13, 1, 20, 2),
    Sketcher.Constraint("Vertical", 12, 2, 21, 1),
    Sketcher.Constraint("Vertical", 9, 1, 24, 2),
    Sketcher.Constraint("Vertical", 8, 2, 25, 1),
    Sketcher.Constraint("Vertical", 5, 1, 28, 2),
    Sketcher.Constraint("Vertical", 4, 2, 29, 1),
    Sketcher.Constraint("Vertical", 3, 1, 32, 2),
    Sketcher.Constraint("Radius", 1, 4.2),
    Sketcher.Constraint("Radius", 3, 4.6),
    Sketcher.Constraint("DistanceX", 0, 2, -1, 1, 0.411672),
    Sketcher.Constraint("DistanceX", -1, 1, 2, 2, 0.450879),
    Sketcher.Constraint("DistanceX", -1, 1, 5, 1, 1.33531),
    Sketcher.Constraint("DistanceY", 6, 2, -1, 1, 4.019149),
    Sketcher.Constraint("DistanceY", 7, 2, -1, 1, 3.704069),
    Sketcher.Constraint("DistanceX", -1, 1, 8, 2, 3.555848),
    Sketcher.Constraint("DistanceX", -1, 1, 9, 1, 2.918209),
    Sketcher.Constraint("DistanceX", -1, 1, 10, 2, 2.664452),
    Sketcher.Constraint("DistanceY", 12, 2, -1, 1, 1.33531),
    Sketcher.Constraint("DistanceX", -1, 1, 14, 2, 3.704069),
    Sketcher.Constraint("DistanceX", -1, 1, 16, 2, 4.57785),
    Sketcher.Constraint("DistanceX", -1, 1, 4, 2, 2.168425),
])
pocket1 = doc.addObject("PartDesign::Pocket", "Pocket")
body.addObject(pocket1)
pocket1.Profile = sketch3
pocket1.Length = 6.2

sketch4 = doc.addObject("Sketcher::SketchObject", "Sketch003")
body.addObject(sketch4)
sketch4.AttachmentSupport = (doc.XZ_Plane, [""])
sketch4.MapMode = "FlatFace"
sketch4.AttachmentOffset = App.Placement(V(0, 0, -14.2), App.Rotation())
sketch4.addGeometry(Part.Circle(V(0, 0, 0), V(0, 0, 1), 6), False)
sketch4.addConstraint([
    Sketcher.Constraint("Coincident", 0, 3, -1, 1),
    Sketcher.Constraint("Diameter", 0, 12.0),
])
pad3 = doc.addObject("PartDesign::Pad", "Pad002")
body.addObject(pad3)
pad3.Profile = sketch4
pad3.Length = 1.4
pad3.Reversed = True
doc.recompute()

chamfer = doc.addObject("PartDesign::Chamfer", "Chamfer")
body.addObject(chamfer)
chamfer.Base = (pad3, edges_at(pad3, [(0, 14.2, -6)]))
chamfer.Size = 1.3

sketch5 = doc.addObject("Sketcher::SketchObject", "Sketch004")
body.addObject(sketch5)
sketch5.AttachmentSupport = (doc.YZ_Plane, [""])
sketch5.MapMode = "FlatFace"
sketch5.addGeometry(Part.Circle(V(4, 0, 0), V(0, 0, 1), 2.8), False)
sketch5.addConstraint([
    Sketcher.Constraint("PointOnObject", 0, 3, -1),
    Sketcher.Constraint("Diameter", 0, 5.5),
    Sketcher.Constraint("DistanceX", -1, 1, 0, 3, 4.0),
])
pad4 = doc.addObject("PartDesign::Pad", "Pad003")
body.addObject(pad4)
pad4.Profile = sketch5
pad4.Length = 11

sketch6 = doc.addObject("Sketcher::SketchObject", "Sketch005")
body.addObject(sketch6)
sketch6.AttachmentSupport = (doc.YZ_Plane, [""])
sketch6.MapMode = "FlatFace"
sketch6.AttachmentOffset = App.Placement(V(0, 0, 11), App.Rotation())
add_polygon(sketch6, [(2.3, 0), (3.1, -1.5), (4.9, -1.5), (5.7, 0), (4.9, 1.5), (3.1, 1.5)])
sketch6.addConstraint([
    Sketcher.Constraint("Horizontal", 1),
    Sketcher.Constraint("Horizontal", 4),
    Sketcher.Constraint("Symmetric", 1, 2, 3, 2, -1),
    Sketcher.Constraint("PointOnObject", 2, 2, -1),
    Sketcher.Constraint("PointOnObject", 5, 2, -1),
    Sketcher.Constraint("Parallel", 0, 3),
    Sketcher.Constraint("Parallel", 2, 5),
    Sketcher.Constraint("Angle", 0, Q("-60 deg")),
    Sketcher.Constraint("DistanceY", 1, 2, 3, 2, 3.0),
    Sketcher.Constraint("DistanceX", 1, 1, 1, 2, 1.732051),
    Sketcher.Constraint("DistanceX", -1, 1, 2, 2, 5.732051),
])
pocket2 = doc.addObject("PartDesign::Pocket", "Pocket001")
body.addObject(pocket2)
pocket2.Profile = sketch6
pocket2.Length = 2

sketch7 = doc.addObject("Sketcher::SketchObject", "Sketch006")
body.addObject(sketch7)
sketch7.AttachmentSupport = (doc.XZ_Plane, [""])
sketch7.MapMode = "FlatFace"
sketch7.addGeometry(Part.Circle(V(0, 0, 0), V(0, 0, 1), 1.5), False)
sketch7.addConstraint([
    Sketcher.Constraint("Coincident", 0, 3, -1, 1),
    Sketcher.Constraint("Diameter", 0, 3.0),
])
pocket3 = doc.addObject("PartDesign::Pocket", "Pocket002")
body.addObject(pocket3)
pocket3.Profile = sketch7
pocket3.Type = "ThroughAll"

doc.recompute()
